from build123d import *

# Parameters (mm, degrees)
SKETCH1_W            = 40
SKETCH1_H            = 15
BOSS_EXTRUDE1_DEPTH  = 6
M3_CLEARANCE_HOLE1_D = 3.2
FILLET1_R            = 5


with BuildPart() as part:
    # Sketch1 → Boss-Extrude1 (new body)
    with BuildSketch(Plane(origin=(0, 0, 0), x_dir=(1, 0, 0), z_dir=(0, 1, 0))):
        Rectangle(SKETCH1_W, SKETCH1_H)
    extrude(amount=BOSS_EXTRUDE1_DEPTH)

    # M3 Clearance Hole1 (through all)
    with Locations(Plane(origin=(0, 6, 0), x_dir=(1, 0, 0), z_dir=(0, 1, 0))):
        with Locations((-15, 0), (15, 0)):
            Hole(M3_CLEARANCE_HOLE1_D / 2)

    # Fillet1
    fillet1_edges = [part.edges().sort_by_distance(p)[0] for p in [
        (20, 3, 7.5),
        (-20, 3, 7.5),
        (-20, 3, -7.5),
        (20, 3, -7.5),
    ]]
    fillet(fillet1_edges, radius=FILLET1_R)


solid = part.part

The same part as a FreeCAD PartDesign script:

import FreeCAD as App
import Part
import Sketcher
Q = App.Units.Quantity


def edges_at(feature, points):
    """Names of the edges that pass closest to the given points."""
    edges = feature.Shape.Edges
    near = lambda p: min(range(len(edges)), key=lambda i: edges[i].distToShape(Part.Vertex(*p))[0])
    return sorted({f"Edge{near(p) + 1}" for p in points})


def add_polygon(sketch, points):
    """Adds a closed chain of lines whose ends are joined by coincident constraints."""
    first, n = sketch.GeometryCount, len(points)
    for a, b in zip(points, points[1:] + points[:1]):
        sketch.addGeometry(Part.LineSegment(App.Vector(*a, 0), App.Vector(*b, 0)), False)
    for i in range(n):
        sketch.addConstraint(Sketcher.Constraint("Coincident", first + i, 2, first + (i + 1) % n, 1))

doc = App.newDocument("Part")
body = doc.addObject("PartDesign::Body", "Body")

sketch1 = body.newObject("Sketcher::SketchObject", "Sketch")
sketch1.AttachmentSupport = (doc.getObject("XZ_Plane"), [""])
sketch1.MapMode = "FlatFace"
add_polygon(sketch1, [(-20, -8), (-20, 8), (20, 8), (20, -8)])
sketch1.addConstraint(Sketcher.Constraint("Vertical", 0))
sketch1.addConstraint(Sketcher.Constraint("Horizontal", 1))
sketch1.addConstraint(Sketcher.Constraint("Vertical", 2))
sketch1.addConstraint(Sketcher.Constraint("Horizontal", 3))
sketch1.addConstraint(Sketcher.Constraint("Symmetric", 0, 2, 2, 2, -1, 1))
sketch1.addConstraint(Sketcher.Constraint("DistanceX", 1, 1, 1, 2, Q("40 mm")))
sketch1.addConstraint(Sketcher.Constraint("DistanceY", 0, 1, 0, 2, Q("15 mm")))
pad1 = body.newObject("PartDesign::Pad", "Pad")
pad1.Profile = sketch1
pad1.Length = 6
pad1.Reversed = True

sketch2 = body.newObject("Sketcher::SketchObject", "Sketch001")
sketch2.AttachmentSupport = (doc.getObject("XZ_Plane"), [""])
sketch2.MapMode = "FlatFace"
sketch2.AttachmentOffset = App.Placement(App.Vector(0, 0, -6), App.Rotation())
sketch2.addGeometry(Part.Circle(App.Vector(-15, 0, 0), App.Vector(0, 0, 1), 1.6), False)
sketch2.addGeometry(Part.Circle(App.Vector(15, 0, 0), App.Vector(0, 0, 1), 1.6), False)
sketch2.addConstraint(Sketcher.Constraint("Equal", 0, 1))
sketch2.addConstraint(Sketcher.Constraint("Symmetric", 0, 3, 1, 3, -1, 1))
sketch2.addConstraint(Sketcher.Constraint("PointOnObject", 0, 3, -1))
sketch2.addConstraint(Sketcher.Constraint("Diameter", 0, Q("3.2 mm")))
sketch2.addConstraint(Sketcher.Constraint("DistanceX", 0, 3, -1, 1, Q("15 mm")))
doc.recompute()
hole = body.newObject("PartDesign::Hole", "Hole")
hole.Profile = sketch2
hole.ThreadType = "None"
hole.Diameter = 3.2
hole.DepthType = "ThroughAll"
hole.Reversed = True
doc.recompute()

fillet = body.newObject("PartDesign::Fillet", "Fillet")
fillet.Base = (hole, edges_at(hole, [
    (20, 3, 7.5),
    (-20, 3, 7.5),
    (-20, 3, -7.5),
    (20, 3, -7.5),
]))
fillet.Radius = 5

doc.recompute()
